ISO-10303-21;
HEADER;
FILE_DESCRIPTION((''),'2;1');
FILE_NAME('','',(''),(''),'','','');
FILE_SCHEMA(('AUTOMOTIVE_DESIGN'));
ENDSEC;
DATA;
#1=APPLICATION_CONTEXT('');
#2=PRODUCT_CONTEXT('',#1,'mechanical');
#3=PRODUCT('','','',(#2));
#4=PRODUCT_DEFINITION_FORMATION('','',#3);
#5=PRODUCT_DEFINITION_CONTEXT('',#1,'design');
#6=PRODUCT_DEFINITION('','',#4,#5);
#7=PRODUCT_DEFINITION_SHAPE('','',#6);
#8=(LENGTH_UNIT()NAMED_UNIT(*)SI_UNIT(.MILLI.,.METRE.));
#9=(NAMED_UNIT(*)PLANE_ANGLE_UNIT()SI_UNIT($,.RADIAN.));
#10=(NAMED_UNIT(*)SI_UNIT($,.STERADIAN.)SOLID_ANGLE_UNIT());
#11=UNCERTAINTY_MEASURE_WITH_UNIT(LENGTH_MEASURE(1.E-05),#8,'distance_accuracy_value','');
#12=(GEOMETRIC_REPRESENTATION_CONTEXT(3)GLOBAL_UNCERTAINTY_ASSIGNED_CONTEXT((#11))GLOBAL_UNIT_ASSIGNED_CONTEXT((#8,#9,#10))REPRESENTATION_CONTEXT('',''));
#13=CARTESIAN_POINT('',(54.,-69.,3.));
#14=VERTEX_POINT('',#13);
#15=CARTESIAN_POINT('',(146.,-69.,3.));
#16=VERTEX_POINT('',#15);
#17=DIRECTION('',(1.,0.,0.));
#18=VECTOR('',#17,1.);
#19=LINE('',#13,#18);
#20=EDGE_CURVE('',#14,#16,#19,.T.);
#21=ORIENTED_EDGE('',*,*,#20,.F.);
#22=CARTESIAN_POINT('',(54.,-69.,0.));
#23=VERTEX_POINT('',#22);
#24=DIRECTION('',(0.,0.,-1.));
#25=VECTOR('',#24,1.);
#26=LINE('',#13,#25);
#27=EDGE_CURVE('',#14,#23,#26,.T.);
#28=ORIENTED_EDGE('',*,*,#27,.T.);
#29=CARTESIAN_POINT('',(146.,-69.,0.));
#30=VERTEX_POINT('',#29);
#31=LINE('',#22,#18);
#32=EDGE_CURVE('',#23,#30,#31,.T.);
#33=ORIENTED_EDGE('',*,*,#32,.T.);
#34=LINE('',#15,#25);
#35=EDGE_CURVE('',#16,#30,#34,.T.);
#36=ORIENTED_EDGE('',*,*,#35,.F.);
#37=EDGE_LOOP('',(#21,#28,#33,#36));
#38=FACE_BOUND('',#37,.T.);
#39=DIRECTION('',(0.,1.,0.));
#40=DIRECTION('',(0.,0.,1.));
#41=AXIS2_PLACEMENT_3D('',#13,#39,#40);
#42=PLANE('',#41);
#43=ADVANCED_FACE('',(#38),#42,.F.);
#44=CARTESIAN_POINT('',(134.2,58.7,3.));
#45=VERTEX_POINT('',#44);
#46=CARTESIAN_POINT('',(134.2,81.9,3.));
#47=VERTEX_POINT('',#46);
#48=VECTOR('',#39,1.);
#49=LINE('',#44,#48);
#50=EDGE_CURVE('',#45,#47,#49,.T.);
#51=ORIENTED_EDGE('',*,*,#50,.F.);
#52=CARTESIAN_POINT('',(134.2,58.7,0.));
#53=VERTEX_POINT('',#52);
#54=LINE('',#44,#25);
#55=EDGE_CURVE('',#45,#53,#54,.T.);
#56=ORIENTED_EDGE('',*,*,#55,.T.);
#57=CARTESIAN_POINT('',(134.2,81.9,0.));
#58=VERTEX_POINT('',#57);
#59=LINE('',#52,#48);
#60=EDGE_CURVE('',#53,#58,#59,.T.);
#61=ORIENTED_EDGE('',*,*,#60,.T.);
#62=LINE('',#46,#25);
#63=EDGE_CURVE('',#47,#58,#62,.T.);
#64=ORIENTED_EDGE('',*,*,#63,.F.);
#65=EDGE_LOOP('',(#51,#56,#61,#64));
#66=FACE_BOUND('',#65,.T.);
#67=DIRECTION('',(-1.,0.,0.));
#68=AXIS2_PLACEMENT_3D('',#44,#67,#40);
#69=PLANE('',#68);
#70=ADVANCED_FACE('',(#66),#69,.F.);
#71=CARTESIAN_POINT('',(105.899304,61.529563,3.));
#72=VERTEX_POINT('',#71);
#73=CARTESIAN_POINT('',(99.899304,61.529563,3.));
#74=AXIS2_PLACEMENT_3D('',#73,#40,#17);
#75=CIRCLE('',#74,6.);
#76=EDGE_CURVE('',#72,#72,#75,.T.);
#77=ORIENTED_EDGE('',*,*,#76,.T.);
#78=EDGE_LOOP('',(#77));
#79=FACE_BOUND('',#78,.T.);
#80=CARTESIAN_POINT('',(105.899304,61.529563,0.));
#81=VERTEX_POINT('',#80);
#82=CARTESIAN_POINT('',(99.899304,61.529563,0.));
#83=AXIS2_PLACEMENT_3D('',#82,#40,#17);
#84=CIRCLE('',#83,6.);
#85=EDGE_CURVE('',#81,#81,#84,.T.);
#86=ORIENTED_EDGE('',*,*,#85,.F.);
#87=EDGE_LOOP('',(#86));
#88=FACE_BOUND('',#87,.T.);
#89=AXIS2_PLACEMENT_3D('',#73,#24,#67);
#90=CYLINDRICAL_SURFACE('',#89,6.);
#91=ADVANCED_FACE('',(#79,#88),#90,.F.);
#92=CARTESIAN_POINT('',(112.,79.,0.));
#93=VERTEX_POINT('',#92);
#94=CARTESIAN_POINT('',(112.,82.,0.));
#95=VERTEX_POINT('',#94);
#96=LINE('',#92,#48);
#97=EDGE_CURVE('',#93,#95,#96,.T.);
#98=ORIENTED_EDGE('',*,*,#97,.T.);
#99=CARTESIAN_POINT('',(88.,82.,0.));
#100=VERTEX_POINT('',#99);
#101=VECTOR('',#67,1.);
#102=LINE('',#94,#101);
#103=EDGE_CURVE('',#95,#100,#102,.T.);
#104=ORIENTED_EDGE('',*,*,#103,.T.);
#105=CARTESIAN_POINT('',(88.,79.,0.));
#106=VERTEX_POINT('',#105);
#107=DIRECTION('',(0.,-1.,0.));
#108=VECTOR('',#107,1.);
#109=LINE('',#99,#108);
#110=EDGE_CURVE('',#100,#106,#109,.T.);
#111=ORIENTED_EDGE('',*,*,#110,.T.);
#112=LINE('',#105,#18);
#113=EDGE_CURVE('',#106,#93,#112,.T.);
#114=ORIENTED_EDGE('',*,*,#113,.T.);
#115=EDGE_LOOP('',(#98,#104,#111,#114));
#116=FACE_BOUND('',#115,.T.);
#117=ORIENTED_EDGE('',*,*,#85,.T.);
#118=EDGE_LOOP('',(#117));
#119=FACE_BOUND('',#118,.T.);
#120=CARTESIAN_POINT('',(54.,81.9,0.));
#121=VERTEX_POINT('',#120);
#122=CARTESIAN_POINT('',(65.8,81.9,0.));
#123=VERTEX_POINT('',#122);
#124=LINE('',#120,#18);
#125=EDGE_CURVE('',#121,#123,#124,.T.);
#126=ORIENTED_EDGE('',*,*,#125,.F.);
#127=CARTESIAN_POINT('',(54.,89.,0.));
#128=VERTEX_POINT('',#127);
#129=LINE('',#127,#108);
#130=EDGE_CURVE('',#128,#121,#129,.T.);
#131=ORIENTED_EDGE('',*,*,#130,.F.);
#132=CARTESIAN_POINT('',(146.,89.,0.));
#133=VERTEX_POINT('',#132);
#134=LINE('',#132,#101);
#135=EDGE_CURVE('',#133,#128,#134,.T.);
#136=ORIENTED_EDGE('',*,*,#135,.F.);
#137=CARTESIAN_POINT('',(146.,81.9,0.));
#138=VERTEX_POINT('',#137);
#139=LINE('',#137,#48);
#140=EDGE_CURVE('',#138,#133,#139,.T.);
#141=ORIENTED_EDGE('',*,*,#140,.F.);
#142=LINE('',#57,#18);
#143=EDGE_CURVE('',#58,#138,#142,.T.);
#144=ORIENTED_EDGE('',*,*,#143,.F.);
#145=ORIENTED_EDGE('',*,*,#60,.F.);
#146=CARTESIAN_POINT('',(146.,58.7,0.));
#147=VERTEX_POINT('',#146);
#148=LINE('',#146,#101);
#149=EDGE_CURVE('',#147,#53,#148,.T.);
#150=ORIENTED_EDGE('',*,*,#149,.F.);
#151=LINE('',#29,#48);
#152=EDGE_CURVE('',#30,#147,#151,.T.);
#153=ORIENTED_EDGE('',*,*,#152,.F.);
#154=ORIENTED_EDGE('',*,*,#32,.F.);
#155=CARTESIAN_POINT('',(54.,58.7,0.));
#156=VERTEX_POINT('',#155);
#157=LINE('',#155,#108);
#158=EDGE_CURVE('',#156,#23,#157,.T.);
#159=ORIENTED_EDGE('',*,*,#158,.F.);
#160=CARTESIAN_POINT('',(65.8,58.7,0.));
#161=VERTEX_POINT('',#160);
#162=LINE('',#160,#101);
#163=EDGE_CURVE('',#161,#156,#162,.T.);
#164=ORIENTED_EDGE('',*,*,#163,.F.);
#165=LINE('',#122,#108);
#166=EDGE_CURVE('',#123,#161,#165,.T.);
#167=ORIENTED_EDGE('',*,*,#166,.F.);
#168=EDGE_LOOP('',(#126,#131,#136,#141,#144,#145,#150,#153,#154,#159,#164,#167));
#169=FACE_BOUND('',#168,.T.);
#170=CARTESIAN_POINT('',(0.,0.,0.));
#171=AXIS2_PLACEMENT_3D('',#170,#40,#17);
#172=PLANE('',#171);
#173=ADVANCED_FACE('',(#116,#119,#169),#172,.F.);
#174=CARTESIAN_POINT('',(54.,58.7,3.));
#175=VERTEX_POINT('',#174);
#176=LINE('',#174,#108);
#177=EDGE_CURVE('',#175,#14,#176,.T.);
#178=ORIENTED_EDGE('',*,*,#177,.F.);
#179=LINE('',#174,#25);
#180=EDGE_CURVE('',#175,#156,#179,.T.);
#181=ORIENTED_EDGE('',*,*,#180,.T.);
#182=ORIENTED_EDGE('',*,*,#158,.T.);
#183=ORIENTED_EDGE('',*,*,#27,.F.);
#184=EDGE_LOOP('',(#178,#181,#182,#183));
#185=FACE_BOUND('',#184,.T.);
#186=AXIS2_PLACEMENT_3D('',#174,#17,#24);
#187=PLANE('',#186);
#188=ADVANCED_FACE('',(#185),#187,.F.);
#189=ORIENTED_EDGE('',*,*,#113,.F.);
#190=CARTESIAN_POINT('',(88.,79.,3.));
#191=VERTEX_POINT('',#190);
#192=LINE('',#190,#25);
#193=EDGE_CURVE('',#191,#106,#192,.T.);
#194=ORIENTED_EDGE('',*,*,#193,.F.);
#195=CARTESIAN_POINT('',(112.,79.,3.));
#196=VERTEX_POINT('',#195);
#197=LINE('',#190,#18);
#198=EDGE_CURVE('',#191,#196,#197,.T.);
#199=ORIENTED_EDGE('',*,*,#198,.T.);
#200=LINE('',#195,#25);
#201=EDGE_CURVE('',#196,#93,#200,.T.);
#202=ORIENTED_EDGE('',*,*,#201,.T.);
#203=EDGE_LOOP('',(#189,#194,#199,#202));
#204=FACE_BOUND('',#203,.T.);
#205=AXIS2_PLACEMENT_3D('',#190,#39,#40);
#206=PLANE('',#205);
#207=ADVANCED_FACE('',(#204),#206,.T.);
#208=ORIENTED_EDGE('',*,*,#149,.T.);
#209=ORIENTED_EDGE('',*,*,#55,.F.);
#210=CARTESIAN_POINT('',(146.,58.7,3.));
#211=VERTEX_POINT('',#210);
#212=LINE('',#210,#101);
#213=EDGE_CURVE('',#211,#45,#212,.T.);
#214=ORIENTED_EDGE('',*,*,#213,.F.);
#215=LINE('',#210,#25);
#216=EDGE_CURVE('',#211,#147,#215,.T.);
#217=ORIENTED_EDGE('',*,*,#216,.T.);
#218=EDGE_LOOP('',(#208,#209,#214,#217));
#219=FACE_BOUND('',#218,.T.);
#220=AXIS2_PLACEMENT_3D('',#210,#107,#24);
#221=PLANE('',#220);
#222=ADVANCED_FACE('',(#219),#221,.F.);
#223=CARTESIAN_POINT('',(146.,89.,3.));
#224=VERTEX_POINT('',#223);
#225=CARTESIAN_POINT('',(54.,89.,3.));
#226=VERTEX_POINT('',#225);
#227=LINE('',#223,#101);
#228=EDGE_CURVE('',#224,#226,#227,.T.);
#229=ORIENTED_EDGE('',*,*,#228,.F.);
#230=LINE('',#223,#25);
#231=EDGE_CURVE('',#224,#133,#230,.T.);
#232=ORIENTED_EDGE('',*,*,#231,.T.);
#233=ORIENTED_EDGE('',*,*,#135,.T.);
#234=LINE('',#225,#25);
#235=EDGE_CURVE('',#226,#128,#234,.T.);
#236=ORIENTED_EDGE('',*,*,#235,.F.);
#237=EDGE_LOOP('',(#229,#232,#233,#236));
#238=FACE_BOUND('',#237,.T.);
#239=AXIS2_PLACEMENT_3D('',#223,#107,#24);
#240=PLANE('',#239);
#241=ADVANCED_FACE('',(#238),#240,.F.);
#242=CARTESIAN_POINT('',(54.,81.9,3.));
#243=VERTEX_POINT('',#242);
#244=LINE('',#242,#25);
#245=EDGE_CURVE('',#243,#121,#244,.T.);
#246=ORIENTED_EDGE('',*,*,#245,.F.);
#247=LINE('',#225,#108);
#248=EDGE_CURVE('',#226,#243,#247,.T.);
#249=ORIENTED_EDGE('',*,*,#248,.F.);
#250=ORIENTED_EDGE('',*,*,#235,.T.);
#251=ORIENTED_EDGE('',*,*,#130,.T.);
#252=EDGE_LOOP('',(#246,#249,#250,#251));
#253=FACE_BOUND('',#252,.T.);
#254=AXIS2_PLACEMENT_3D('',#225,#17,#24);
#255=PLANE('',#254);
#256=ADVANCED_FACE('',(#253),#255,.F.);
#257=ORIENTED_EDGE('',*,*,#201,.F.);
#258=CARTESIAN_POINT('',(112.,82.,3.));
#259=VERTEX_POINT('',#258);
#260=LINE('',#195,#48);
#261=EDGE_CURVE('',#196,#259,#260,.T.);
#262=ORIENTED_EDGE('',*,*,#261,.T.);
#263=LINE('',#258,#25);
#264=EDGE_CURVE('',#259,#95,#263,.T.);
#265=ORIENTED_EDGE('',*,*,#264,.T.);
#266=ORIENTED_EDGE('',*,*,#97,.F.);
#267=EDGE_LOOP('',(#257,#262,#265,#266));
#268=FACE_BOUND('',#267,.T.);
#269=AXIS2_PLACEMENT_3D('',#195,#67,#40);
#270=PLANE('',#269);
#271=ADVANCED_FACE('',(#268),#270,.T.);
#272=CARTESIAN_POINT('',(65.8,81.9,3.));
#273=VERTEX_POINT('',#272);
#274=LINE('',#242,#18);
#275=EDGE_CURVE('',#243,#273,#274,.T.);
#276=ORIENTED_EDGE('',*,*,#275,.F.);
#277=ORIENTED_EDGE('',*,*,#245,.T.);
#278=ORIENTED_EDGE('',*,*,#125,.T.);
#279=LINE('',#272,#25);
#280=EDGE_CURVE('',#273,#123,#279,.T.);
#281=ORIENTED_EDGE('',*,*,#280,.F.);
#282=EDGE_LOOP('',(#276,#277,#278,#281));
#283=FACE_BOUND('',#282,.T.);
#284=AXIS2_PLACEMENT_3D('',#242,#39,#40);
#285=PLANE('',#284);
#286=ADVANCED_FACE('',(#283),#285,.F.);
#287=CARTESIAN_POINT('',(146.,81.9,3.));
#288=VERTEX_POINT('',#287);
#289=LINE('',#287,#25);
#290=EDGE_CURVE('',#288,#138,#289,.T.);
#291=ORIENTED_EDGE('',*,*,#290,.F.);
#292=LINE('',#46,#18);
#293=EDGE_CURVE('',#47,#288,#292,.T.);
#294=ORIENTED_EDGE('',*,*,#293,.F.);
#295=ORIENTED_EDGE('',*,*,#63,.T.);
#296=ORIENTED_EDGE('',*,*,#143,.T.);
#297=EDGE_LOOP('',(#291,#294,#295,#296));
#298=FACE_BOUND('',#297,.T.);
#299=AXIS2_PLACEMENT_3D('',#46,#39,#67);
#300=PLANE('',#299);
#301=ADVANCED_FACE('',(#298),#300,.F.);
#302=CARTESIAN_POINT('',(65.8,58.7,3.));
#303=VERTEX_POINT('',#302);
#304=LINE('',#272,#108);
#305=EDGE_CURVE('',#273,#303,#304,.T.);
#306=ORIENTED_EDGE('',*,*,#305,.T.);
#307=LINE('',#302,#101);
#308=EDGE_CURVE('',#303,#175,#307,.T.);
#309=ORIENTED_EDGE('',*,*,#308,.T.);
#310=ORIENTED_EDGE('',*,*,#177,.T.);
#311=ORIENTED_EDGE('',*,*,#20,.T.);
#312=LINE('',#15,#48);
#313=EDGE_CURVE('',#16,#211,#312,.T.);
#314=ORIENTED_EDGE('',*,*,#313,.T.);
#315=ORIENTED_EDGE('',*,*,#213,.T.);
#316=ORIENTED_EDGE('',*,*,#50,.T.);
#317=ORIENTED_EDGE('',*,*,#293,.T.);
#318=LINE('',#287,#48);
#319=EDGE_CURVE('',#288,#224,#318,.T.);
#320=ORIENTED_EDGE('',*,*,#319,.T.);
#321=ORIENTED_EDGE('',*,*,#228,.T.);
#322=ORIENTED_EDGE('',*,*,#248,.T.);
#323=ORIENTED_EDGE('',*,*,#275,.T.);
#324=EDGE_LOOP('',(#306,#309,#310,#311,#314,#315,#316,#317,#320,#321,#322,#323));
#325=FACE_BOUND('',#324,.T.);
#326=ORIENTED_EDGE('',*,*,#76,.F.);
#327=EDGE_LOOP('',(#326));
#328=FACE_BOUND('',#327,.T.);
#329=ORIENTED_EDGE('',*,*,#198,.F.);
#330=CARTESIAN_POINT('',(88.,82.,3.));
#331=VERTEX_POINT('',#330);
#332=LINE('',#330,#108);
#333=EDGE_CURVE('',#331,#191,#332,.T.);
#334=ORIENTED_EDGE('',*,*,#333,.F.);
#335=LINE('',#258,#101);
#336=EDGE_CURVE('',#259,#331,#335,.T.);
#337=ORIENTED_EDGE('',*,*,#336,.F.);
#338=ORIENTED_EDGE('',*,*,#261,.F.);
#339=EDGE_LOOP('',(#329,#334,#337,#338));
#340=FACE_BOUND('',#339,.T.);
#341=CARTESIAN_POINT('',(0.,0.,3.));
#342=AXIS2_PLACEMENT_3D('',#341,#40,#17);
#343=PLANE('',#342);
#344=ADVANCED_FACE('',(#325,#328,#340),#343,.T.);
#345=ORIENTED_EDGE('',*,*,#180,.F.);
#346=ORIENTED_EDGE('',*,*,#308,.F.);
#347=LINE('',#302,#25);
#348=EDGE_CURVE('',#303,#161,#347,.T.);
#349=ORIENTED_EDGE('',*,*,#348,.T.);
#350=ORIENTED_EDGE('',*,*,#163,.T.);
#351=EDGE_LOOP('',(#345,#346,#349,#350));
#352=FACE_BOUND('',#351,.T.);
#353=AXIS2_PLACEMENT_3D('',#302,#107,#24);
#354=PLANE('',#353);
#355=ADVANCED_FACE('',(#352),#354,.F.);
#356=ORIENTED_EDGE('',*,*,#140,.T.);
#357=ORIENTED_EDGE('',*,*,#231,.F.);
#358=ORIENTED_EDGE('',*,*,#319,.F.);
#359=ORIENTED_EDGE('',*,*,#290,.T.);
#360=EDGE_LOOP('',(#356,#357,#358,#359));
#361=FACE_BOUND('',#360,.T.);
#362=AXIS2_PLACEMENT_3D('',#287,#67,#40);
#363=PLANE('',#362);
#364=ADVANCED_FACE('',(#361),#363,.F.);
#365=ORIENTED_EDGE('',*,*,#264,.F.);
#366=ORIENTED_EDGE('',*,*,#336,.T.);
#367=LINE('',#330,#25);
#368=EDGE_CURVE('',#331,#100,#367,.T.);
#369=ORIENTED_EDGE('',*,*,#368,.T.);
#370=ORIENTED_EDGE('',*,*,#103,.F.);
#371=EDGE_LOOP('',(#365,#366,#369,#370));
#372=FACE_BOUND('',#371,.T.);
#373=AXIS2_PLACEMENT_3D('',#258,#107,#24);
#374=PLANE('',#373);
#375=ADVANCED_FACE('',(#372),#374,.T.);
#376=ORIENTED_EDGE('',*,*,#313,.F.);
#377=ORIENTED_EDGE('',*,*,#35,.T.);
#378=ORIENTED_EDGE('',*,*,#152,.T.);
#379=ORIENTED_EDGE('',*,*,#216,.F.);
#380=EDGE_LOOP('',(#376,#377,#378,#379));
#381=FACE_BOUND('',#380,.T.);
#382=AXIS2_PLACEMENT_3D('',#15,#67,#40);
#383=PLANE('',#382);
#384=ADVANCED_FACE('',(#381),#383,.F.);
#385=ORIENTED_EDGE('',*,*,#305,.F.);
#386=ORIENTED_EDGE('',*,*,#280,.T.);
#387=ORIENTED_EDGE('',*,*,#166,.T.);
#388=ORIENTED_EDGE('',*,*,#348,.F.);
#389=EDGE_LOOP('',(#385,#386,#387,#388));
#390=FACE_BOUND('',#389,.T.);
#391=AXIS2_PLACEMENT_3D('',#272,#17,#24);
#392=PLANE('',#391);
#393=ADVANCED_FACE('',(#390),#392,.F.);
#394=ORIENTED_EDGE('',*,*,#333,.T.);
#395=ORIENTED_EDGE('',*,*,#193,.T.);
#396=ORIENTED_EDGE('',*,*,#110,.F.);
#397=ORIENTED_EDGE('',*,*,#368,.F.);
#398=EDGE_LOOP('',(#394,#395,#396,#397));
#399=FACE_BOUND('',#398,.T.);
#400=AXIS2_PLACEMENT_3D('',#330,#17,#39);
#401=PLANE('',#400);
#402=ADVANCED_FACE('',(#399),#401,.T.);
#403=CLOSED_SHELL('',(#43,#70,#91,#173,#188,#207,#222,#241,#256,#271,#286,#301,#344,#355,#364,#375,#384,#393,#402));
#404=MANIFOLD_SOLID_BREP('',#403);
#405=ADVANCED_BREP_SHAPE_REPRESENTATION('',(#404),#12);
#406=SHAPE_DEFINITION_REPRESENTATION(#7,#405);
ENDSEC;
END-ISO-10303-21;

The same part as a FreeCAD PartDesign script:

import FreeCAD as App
import Part
import Sketcher
from FreeCAD import Vector


def add_polygon(sketch, points):
    """Adds a closed chain of lines whose ends are joined by coincident constraints."""
    first, n = sketch.GeometryCount, len(points)
    for a, b in zip(points, points[1:] + points[:1]):
        sketch.addGeometry(Part.LineSegment(App.Vector(*a, 0), App.Vector(*b, 0)), False)
    for i in range(n):
        sketch.addConstraint(Sketcher.Constraint("Coincident", first + i, 2, first + (i + 1) % n, 1))

doc = App.newDocument("Part")
body = doc.addObject("PartDesign::Body", "Body")

sketch1 = body.newObject("Sketcher::SketchObject", "Sketch")
sketch1.AttachmentSupport = (doc.getObject("XY_Plane"), [""])
sketch1.MapMode = "FlatFace"
add_polygon(sketch1, [(54, 89), (54, 81.9), (65.8, 81.9), (65.8, 58.7), (54, 58.7), (54, -69), (146, -69), (146, 58.7), (134.2, 58.7), (134.2, 81.9), (146, 81.9), (146, 89)])
sketch1.addGeometry(Part.Circle(Vector(99.899304, 61.529563, 0), Vector(0, 0, 1), 6), False)
add_polygon(sketch1, [(112, 79), (88, 79), (88, 82), (112, 82)])
sketch1.addConstraint([
    Sketcher.Constraint("Vertical", 0),
    Sketcher.Constraint("Horizontal", 1),
    Sketcher.Constraint("Vertical", 2),
    Sketcher.Constraint("Horizontal", 3),
    Sketcher.Constraint("Vertical", 4),
    Sketcher.Constraint("Horizontal", 5),
    Sketcher.Constraint("Vertical", 6),
    Sketcher.Constraint("Horizontal", 7),
    Sketcher.Constraint("Vertical", 8),
    Sketcher.Constraint("Horizontal", 9),
    Sketcher.Constraint("Vertical", 10),
    Sketcher.Constraint("Horizontal", 11),
    Sketcher.Constraint("Horizontal", 13),
    Sketcher.Constraint("Vertical", 14),
    Sketcher.Constraint("Horizontal", 15),
    Sketcher.Constraint("Vertical", 16),
    Sketcher.Constraint("Horizontal", 3, 2, 6, 2),
    Sketcher.Constraint("Horizontal", 1, 2, 8, 2),
    Sketcher.Constraint("Vertical", 0, 2, 3, 2),
    Sketcher.Constraint("Vertical", 6, 2, 9, 2),
    Sketcher.Constraint("Equal", 3, 7),
    Sketcher.Constraint("Diameter", 12, 12.0),
    Sketcher.Constraint("DistanceX", 5, 1, 5, 2, 92.0),
    Sketcher.Constraint("DistanceX", 13, 2, 13, 1, 24.0),
    Sketcher.Constraint("DistanceY", 14, 1, 14, 2, 3.0),
    Sketcher.Constraint("DistanceX", 1, 1, 1, 2, 11.8),
    Sketcher.Constraint("DistanceY", 0, 2, 0, 1, 7.1),
    Sketcher.Constraint("DistanceY", 2, 2, 2, 1, 23.2),
    Sketcher.Constraint("DistanceY", 4, 2, 4, 1, 127.7),
    Sketcher.Constraint("DistanceX", -1, 1, 0, 2, 54.0),
    Sketcher.Constraint("DistanceY", 4, 2, -1, 1, 69.0),
    Sketcher.Constraint("DistanceX", -1, 1, 13, 2, 88.0),
    Sketcher.Constraint("DistanceY", -1, 1, 13, 2, 79.0),
    Sketcher.Constraint("DistanceX", -1, 1, 12, 3, 99.899304),
    Sketcher.Constraint("DistanceY", -1, 1, 12, 3, 61.529563),
])
pad1 = body.newObject("PartDesign::Pad", "Pad")
pad1.Profile = sketch1
pad1.Length = 3

doc.recompute()
